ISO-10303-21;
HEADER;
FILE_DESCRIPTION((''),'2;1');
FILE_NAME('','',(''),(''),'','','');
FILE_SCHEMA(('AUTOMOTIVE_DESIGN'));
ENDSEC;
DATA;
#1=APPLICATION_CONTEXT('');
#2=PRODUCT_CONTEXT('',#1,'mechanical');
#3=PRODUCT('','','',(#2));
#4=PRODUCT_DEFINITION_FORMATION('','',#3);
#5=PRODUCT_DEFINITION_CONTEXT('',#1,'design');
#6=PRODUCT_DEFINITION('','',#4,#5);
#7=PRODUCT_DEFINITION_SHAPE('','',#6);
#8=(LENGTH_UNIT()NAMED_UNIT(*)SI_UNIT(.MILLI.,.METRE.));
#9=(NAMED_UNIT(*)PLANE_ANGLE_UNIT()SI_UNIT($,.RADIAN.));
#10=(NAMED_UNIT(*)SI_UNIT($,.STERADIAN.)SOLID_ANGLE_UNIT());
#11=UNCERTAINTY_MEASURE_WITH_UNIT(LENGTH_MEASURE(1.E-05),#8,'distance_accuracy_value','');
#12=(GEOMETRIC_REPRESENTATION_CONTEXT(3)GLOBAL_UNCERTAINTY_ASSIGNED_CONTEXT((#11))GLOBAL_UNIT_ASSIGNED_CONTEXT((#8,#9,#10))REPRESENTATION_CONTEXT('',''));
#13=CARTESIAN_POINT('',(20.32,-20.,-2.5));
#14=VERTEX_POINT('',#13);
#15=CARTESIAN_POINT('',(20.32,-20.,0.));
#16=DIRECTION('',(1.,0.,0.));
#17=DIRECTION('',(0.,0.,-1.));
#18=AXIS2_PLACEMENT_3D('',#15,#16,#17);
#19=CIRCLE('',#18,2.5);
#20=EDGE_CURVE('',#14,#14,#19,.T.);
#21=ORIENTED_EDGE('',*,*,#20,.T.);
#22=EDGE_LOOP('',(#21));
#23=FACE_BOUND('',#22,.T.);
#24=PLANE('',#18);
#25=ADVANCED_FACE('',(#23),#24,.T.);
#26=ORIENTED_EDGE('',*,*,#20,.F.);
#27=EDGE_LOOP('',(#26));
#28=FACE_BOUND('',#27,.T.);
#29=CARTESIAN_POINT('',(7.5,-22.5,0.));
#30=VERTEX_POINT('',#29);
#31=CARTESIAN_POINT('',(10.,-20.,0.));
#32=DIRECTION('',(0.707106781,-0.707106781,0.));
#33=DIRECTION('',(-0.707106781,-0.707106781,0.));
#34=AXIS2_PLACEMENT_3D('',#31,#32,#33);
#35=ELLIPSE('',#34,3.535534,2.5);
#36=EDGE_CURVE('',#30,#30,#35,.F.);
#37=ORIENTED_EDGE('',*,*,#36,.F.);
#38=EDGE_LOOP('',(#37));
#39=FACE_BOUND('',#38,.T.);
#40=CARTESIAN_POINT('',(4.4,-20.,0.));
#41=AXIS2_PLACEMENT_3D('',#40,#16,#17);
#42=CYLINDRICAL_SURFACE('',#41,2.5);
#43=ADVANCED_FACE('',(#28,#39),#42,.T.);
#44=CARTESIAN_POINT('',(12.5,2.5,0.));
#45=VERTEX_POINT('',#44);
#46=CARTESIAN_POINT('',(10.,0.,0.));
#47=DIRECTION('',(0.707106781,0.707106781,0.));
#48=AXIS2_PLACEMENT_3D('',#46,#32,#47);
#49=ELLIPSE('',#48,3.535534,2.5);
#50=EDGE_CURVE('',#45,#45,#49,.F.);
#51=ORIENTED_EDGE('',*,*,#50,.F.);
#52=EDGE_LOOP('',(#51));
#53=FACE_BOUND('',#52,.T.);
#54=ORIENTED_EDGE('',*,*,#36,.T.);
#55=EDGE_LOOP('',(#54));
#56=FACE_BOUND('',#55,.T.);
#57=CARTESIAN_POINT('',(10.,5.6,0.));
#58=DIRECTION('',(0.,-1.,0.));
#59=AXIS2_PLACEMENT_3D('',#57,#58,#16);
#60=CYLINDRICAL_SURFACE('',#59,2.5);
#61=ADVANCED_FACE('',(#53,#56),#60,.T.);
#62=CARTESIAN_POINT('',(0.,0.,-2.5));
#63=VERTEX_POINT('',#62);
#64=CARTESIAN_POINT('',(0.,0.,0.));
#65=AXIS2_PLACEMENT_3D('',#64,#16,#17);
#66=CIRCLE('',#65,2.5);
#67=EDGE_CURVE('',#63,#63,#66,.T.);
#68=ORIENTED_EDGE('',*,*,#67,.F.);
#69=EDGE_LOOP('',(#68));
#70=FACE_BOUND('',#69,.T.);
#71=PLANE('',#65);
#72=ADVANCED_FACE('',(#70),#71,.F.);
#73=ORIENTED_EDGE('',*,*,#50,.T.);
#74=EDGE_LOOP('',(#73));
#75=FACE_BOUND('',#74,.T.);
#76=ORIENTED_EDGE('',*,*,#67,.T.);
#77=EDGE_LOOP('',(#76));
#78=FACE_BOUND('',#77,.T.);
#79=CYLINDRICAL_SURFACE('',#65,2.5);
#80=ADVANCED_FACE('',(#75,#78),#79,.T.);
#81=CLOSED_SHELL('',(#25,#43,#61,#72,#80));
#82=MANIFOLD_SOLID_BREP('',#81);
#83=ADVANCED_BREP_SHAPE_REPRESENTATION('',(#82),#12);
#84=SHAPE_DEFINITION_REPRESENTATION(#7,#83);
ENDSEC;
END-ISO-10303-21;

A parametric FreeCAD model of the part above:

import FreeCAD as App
import Part
import Sketcher
from FreeCAD import Vector
Q = App.Units.Quantity

doc = App.newDocument("Part")
params = doc.addObject("Spreadsheet::Sheet", "Params")
for row, (alias, value) in enumerate([
    ("sketch1_diameter", "5 mm"),
    ("sketch2_width", "10 mm"),
    ("sketch2_height", "20 mm"),
    ("sketch2_width2", "10.32 mm"),
], start=1):
    params.set(f"A{row}", alias)
    params.set(f"B{row}", "=" + value)
    params.setAlias(f"B{row}", alias)

body = doc.addObject("PartDesign::Body", "Body")

sketch1 = body.newObject("Sketcher::SketchObject", "Sketch")
sketch1.AttachmentSupport = (doc.getObject("YZ_Plane"), [""])
sketch1.MapMode = "FlatFace"
sketch1.addGeometry(Part.Circle(Vector(0, 0, 0), Vector(0, 0, 1), 2.5), False)
sketch1.addConstraint(Sketcher.Constraint("Coincident", 0, 3, -1, 1))
sketch1.addConstraint(Sketcher.Constraint("Diameter", 0, Q("5 mm")))
sketch1.setExpression("Constraints[1]", "Params.sketch1_diameter")

sketch2 = body.newObject("Sketcher::SketchObject", "Sketch001")
sketch2.AttachmentSupport = (doc.getObject("XY_Plane"), [""])
sketch2.MapMode = "FlatFace"
sketch2.addGeometry(Part.LineSegment(Vector(0, 0, 0), Vector(10, 0, 0)), False)
sketch2.addGeometry(Part.LineSegment(Vector(10, 0, 0), Vector(10, -20, 0)), False)
sketch2.addGeometry(Part.LineSegment(Vector(10, -20, 0), Vector(20.32, -20, 0)), False)
sketch2.addConstraint(Sketcher.Constraint("Coincident", 0, 2, 1, 1))
sketch2.addConstraint(Sketcher.Constraint("Coincident", 1, 2, 2, 1))
sketch2.addConstraint(Sketcher.Constraint("Horizontal", 0))
sketch2.addConstraint(Sketcher.Constraint("Vertical", 1))
sketch2.addConstraint(Sketcher.Constraint("Horizontal", 2))
sketch2.addConstraint(Sketcher.Constraint("Coincident", 0, 1, -1, 1))
sketch2.addConstraint(Sketcher.Constraint("DistanceX", 0, 1, 0, 2, Q("10 mm")))
sketch2.addConstraint(Sketcher.Constraint("DistanceY", 1, 2, 1, 1, Q("20 mm")))
sketch2.addConstraint(Sketcher.Constraint("DistanceX", 2, 1, 2, 2, Q("10.32 mm")))
sketch2.setExpression("Constraints[6]", "Params.sketch2_width")
sketch2.setExpression("Constraints[7]", "Params.sketch2_height")
sketch2.setExpression("Constraints[8]", "Params.sketch2_width2")
doc.recompute()

additivepipe = body.newObject("PartDesign::AdditivePipe", "AdditivePipe")
additivepipe.Profile = sketch1
additivepipe.Spine = (sketch2, ["Edge1", "Edge2", "Edge3"])
additivepipe.Transition = "Right corner"

doc.recompute()
